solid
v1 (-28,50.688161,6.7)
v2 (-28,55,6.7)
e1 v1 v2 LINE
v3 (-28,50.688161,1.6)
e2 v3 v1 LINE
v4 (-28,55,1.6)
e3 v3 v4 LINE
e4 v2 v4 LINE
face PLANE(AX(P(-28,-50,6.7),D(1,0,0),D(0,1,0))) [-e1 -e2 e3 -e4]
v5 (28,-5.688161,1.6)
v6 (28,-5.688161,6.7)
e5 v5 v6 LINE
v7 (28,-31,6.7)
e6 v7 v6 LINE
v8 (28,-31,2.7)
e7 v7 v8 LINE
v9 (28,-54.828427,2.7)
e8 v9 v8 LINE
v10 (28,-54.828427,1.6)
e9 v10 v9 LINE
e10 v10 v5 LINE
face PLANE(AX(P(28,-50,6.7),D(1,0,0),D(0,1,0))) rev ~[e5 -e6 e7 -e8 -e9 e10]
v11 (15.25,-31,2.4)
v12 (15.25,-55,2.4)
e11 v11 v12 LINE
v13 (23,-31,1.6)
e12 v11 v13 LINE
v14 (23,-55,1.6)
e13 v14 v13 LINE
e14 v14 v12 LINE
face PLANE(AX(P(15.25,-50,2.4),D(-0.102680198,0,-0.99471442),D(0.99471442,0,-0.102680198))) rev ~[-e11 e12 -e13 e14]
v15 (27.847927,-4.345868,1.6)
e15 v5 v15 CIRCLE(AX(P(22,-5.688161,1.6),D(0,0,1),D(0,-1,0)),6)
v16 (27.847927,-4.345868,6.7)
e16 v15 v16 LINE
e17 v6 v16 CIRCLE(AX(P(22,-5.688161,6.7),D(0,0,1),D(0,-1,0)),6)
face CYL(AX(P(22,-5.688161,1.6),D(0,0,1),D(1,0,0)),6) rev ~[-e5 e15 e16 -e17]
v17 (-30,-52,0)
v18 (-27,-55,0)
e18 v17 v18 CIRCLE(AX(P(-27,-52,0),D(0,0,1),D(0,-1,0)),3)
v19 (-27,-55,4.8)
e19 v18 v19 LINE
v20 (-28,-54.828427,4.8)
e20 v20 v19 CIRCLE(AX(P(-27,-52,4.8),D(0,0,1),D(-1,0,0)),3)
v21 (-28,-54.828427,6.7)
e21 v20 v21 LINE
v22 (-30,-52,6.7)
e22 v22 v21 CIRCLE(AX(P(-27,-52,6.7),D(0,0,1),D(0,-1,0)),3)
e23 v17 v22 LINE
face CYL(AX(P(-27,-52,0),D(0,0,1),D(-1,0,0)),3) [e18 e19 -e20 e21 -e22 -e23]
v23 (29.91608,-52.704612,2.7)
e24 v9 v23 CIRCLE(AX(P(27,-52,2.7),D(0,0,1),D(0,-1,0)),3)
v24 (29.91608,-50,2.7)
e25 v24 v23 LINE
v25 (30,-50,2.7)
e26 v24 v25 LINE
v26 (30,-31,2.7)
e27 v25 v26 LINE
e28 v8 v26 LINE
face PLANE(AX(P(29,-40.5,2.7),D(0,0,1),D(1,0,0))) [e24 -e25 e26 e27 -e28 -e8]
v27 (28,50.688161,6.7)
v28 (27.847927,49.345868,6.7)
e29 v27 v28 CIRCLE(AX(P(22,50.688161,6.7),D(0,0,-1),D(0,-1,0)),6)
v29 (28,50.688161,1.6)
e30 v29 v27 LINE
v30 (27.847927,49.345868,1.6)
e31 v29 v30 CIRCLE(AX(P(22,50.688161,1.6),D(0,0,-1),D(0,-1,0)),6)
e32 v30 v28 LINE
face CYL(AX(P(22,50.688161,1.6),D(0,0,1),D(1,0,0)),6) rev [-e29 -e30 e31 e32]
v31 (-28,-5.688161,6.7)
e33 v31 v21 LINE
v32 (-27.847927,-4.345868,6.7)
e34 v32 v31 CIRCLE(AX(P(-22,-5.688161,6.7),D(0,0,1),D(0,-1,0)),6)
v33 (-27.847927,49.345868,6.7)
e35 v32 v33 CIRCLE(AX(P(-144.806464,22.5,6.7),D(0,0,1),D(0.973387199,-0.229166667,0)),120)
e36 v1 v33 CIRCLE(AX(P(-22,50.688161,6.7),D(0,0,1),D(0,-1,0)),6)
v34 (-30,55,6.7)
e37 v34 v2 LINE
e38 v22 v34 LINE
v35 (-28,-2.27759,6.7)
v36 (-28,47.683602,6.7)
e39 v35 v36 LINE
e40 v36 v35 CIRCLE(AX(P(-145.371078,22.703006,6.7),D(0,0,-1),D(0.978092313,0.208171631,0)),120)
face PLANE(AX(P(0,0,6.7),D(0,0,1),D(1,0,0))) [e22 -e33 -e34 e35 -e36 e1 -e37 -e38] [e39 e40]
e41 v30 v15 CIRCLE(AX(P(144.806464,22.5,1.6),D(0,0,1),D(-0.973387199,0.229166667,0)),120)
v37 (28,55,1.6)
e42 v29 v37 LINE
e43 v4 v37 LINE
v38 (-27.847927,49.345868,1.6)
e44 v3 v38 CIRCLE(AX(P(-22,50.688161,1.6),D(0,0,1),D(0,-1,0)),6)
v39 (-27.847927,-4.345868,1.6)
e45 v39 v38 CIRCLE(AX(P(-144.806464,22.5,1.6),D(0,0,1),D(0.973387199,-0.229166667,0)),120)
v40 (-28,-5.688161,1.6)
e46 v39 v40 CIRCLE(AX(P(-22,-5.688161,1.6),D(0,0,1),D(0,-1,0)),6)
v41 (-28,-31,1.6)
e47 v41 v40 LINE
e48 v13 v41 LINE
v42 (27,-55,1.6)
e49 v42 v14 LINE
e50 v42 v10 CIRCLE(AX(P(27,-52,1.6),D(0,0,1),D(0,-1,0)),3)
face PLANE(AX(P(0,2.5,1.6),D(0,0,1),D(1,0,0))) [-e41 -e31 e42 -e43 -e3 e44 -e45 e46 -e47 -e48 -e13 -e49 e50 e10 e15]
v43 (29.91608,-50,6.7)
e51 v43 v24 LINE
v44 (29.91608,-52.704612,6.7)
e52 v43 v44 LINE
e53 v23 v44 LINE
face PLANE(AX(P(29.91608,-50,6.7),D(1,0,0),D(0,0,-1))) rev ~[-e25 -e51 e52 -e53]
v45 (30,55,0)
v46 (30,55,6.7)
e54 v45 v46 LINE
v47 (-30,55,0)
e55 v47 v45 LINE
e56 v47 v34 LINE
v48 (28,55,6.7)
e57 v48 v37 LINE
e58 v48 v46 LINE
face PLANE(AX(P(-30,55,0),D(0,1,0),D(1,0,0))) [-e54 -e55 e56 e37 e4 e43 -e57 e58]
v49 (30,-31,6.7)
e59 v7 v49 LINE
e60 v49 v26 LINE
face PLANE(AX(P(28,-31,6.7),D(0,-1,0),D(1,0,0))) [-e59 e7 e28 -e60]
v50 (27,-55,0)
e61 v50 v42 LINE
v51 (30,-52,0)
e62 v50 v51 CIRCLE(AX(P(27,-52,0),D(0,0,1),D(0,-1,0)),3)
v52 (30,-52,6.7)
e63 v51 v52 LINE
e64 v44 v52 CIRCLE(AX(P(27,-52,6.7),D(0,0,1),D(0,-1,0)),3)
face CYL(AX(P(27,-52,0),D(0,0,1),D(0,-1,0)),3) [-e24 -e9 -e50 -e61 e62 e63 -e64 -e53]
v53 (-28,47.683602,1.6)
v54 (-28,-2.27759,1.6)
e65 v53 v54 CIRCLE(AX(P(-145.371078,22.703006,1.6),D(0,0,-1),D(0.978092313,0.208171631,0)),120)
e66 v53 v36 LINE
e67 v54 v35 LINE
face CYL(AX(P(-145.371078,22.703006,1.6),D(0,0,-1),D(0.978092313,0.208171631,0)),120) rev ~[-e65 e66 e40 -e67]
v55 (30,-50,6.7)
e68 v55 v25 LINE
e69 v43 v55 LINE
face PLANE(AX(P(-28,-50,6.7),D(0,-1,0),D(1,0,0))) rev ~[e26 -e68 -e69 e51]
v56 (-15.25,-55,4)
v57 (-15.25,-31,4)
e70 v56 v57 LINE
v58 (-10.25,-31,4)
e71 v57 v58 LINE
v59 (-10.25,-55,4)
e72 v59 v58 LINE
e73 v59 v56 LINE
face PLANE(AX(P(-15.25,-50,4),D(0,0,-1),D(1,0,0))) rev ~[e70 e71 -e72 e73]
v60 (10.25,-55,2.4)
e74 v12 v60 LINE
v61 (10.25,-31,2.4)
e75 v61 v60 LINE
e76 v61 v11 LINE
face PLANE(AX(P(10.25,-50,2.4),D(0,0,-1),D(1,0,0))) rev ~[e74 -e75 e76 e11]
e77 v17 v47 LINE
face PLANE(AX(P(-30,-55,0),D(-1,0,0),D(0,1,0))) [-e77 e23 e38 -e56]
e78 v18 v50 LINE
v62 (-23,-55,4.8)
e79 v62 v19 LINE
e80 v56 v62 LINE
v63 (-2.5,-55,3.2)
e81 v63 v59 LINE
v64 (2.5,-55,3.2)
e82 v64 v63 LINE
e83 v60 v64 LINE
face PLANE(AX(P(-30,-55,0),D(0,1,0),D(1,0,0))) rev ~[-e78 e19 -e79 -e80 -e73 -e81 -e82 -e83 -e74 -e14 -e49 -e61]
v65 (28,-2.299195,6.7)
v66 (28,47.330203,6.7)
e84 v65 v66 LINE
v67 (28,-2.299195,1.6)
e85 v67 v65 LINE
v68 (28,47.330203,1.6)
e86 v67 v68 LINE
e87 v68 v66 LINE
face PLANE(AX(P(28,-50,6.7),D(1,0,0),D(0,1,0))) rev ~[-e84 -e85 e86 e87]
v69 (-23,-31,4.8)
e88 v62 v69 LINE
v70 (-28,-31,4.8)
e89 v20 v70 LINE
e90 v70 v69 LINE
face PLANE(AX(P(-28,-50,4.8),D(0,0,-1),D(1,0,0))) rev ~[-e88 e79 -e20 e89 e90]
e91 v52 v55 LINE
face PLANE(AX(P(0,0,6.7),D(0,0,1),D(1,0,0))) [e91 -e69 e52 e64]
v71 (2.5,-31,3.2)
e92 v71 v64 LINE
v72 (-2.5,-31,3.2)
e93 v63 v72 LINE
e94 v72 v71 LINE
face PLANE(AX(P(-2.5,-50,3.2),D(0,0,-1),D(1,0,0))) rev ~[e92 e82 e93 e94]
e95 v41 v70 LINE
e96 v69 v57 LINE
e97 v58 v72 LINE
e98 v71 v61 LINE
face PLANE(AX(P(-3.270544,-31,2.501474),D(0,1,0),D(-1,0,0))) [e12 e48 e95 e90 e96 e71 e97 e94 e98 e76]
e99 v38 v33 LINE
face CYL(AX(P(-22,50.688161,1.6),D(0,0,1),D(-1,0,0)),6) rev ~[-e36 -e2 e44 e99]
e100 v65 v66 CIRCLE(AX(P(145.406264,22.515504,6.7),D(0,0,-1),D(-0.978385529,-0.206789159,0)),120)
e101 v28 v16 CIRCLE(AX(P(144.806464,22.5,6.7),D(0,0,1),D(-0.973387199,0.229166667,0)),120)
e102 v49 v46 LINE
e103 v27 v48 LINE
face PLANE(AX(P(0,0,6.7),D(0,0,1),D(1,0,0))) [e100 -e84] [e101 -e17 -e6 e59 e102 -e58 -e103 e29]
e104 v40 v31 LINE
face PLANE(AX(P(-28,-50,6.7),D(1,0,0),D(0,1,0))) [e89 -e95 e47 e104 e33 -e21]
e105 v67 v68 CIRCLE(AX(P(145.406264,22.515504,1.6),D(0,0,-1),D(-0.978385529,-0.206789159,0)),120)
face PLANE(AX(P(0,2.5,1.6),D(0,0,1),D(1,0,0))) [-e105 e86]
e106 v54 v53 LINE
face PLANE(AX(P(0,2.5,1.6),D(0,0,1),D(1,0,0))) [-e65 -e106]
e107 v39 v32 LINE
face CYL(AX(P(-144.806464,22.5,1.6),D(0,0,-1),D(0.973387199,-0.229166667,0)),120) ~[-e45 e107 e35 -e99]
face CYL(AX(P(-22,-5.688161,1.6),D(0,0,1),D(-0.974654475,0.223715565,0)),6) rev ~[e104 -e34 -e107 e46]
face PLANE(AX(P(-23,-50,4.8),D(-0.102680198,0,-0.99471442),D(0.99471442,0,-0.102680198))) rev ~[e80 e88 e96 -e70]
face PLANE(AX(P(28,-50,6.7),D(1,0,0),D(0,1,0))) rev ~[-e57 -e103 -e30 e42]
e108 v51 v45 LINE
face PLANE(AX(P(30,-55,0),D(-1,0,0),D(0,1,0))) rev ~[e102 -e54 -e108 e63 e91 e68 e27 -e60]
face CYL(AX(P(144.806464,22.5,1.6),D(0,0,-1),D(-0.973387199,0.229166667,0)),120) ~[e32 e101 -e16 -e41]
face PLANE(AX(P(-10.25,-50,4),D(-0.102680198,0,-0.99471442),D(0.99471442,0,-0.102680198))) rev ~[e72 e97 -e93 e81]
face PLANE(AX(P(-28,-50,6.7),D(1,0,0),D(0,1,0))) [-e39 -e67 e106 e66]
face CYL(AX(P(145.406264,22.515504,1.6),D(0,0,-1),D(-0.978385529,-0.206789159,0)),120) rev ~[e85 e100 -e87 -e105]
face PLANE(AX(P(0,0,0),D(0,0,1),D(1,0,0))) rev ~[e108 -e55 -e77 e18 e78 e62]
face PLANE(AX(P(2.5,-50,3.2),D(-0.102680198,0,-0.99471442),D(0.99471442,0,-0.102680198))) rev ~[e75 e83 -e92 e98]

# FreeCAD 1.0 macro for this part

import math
import FreeCAD as App
import Part
import Sketcher
from FreeCAD import Vector


def edges_at(feature, points):
    """Names of the edges that pass closest to the given points."""
    edges = feature.Shape.Edges
    near = lambda p: min(range(len(edges)), key=lambda i: edges[i].distToShape(Part.Vertex(*p))[0])
    return sorted({f"Edge{near(p) + 1}" for p in points})

doc = App.newDocument("Part")
body = doc.addObject("PartDesign::Body", "Body")

# Sketch on XY plane
sketch1 = body.newObject("Sketcher::SketchObject", "Sketch")
sketch1.AttachmentSupport = (doc.getObject("XY_Plane"), [""])
sketch1.MapMode = "FlatFace"
sketch1.addGeometry([
    Part.LineSegment(Vector(-30, 55, 0), Vector(-30, -55, 0)),
    Part.LineSegment(Vector(-30, -55, 0), Vector(30, -55, 0)),
    Part.LineSegment(Vector(30, -55, 0), Vector(30, 55, 0)),
    Part.LineSegment(Vector(30, 55, 0), Vector(-30, 55, 0)),
], False)
sketch1.addConstraint([
    Sketcher.Constraint("Coincident", 0, 2, 1, 1),
    Sketcher.Constraint("Coincident", 1, 2, 2, 1),
    Sketcher.Constraint("Coincident", 2, 2, 3, 1),
    Sketcher.Constraint("Coincident", 3, 2, 0, 1),
    Sketcher.Constraint("Vertical", 0),
    Sketcher.Constraint("Horizontal", 1),
    Sketcher.Constraint("Vertical", 2),
    Sketcher.Constraint("Horizontal", 3),
    Sketcher.Constraint("Symmetric", 0, 2, 2, 2, -1, 1),
    Sketcher.Constraint("DistanceX", 1, 1, 1, 2, 60.0),
    Sketcher.Constraint("DistanceY", 0, 2, 0, 1, 110.0),
])
pad1 = body.newObject("PartDesign::Pad", "Pad")
pad1.Profile = sketch1
pad1.Length = 6.7

# Sketch on XY plane
sketch2 = body.newObject("Sketcher::SketchObject", "Sketch001")
sketch2.AttachmentSupport = (doc.getObject("XY_Plane"), [""])
sketch2.MapMode = "FlatFace"
sketch2.AttachmentOffset = App.Placement(Vector(0, 0, 6.7), App.Rotation())
sketch2.addGeometry([
    Part.LineSegment(Vector(-28, 55, 0), Vector(-28, -50, 0)),
    Part.LineSegment(Vector(-28, -50, 0), Vector(28, -50, 0)),
    Part.LineSegment(Vector(28, -50, 0), Vector(28, 55, 0)),
    Part.LineSegment(Vector(28, 55, 0), Vector(-28, 55, 0)),
], False)
sketch2.addConstraint([
    Sketcher.Constraint("Coincident", 0, 2, 1, 1),
    Sketcher.Constraint("Coincident", 1, 2, 2, 1),
    Sketcher.Constraint("Coincident", 2, 2, 3, 1),
    Sketcher.Constraint("Coincident", 3, 2, 0, 1),
    Sketcher.Constraint("Vertical", 0),
    Sketcher.Constraint("Horizontal", 1),
    Sketcher.Constraint("Vertical", 2),
    Sketcher.Constraint("Horizontal", 3),
    Sketcher.Constraint("DistanceX", 1, 1, 1, 2, 56.0),
    Sketcher.Constraint("DistanceY", 0, 2, 0, 1, 105.0),
    Sketcher.Constraint("DistanceX", 0, 2, -1, 1, 28.0),
    Sketcher.Constraint("DistanceY", 0, 2, -1, 1, 50.0),
])
pocket1 = body.newObject("PartDesign::Pocket", "Pocket")
pocket1.Profile = sketch2
pocket1.Length = 5.1

# Sketch on XY plane
sketch3 = body.newObject("Sketcher::SketchObject", "Sketch002")
sketch3.AttachmentSupport = (doc.getObject("XY_Plane"), [""])
sketch3.MapMode = "FlatFace"
sketch3.AttachmentOffset = App.Placement(Vector(0, 0, 1.6), App.Rotation())
sketch3.addGeometry([
    Part.LineSegment(Vector(-28, -2.3, 0), Vector(-28, -5, 0)),  # 0
    Part.ArcOfCircle(Part.Circle(Vector(-144.8, 22.5, 0), Vector(0, 0, 1), 120), math.radians(-13), math.radians(13)),  # 1
    Part.LineSegment(Vector(-28, 50, 0), Vector(-28, 47.7, 0)),  # 2
    Part.ArcOfCircle(Part.Circle(Vector(-145.4, 22.7, 0), Vector(0, 0, 1), 120), math.radians(-12), math.radians(12)),  # 3
    Part.LineSegment(Vector(28, 47.3, 0), Vector(28, 50, 0)),  # 4
    Part.ArcOfCircle(Part.Circle(Vector(144.8, 22.5, 0), Vector(0, 0, 1), 120), math.radians(167), math.radians(193)),  # 5
    Part.LineSegment(Vector(28, -5, 0), Vector(28, -2.3, 0)),  # 6
    Part.ArcOfCircle(Part.Circle(Vector(145.4, 22.5, 0), Vector(0, 0, 1), 120), math.radians(168), math.radians(192)),  # 7
], False)
sketch3.addConstraint([
    Sketcher.Constraint("Coincident", 0, 2, 1, 1),
    Sketcher.Constraint("Coincident", 1, 2, 2, 1),
    Sketcher.Constraint("Coincident", 2, 2, 3, 2),
    Sketcher.Constraint("Coincident", 3, 1, 0, 1),
    Sketcher.Constraint("Coincident", 4, 2, 5, 1),
    Sketcher.Constraint("Coincident", 5, 2, 6, 1),
    Sketcher.Constraint("Coincident", 6, 2, 7, 2),
    Sketcher.Constraint("Coincident", 7, 1, 4, 1),
    Sketcher.Constraint("Vertical", 0),
    Sketcher.Constraint("Vertical", 2),
    Sketcher.Constraint("Vertical", 4),
    Sketcher.Constraint("Vertical", 6),
    Sketcher.Constraint("Equal", 1, 3),
    Sketcher.Constraint("Equal", 3, 5),
    Sketcher.Constraint("Equal", 5, 7),
    Sketcher.Constraint("Symmetric", 1, 3, 5, 3, -2),
    Sketcher.Constraint("Horizontal", 1, 2, 4, 2),
    Sketcher.Constraint("Horizontal", 0, 2, 5, 2),
    Sketcher.Constraint("Vertical", 0, 2, 1, 2),
    Sketcher.Constraint("Radius", 1, 120.0),
    Sketcher.Constraint("DistanceX", 0, 2, -1, 1, 28.0),
    Sketcher.Constraint("DistanceY", 0, 2, -1, 1, 5.0),
    Sketcher.Constraint("DistanceY", -1, 1, 1, 2, 50.0),
    Sketcher.Constraint("DistanceY", 2, 2, 2, 1, 2.316398),
    Sketcher.Constraint("DistanceY", 0, 2, 0, 1, 2.72241),
    Sketcher.Constraint("DistanceX", 5, 3, 7, 3, 0.5998),
    Sketcher.Constraint("DistanceY", 7, 3, 3, 3, 0.187502),
])
pad2 = body.newObject("PartDesign::Pad", "Pad001")
pad2.Profile = sketch3
pad2.Length = 5.1
doc.recompute()

fillet = body.newObject("PartDesign::Fillet", "Fillet")
fillet.Base = (pad2, edges_at(pad2, [(-30, -55, 3.35), (30, -55, 3.35)]))
fillet.Radius = 3
doc.recompute()

fillet2 = body.newObject("PartDesign::Fillet", "Fillet001")
fillet2.Base = (fillet, edges_at(fillet, [
    (28, -5, 4.15),
    (-28, -5, 4.15),
    (-28, 50, 4.15),
    (28, 50, 4.15),
]))
fillet2.Radius = 6

# Sketch on XZ plane
sketch4 = body.newObject("Sketcher::SketchObject", "Sketch003")
sketch4.AttachmentSupport = (doc.getObject("XZ_Plane"), [""])
sketch4.MapMode = "FlatFace"
sketch4.AttachmentOffset = App.Placement(Vector(0, 0, 50), App.Rotation())
sketch4.addGeometry([
    Part.LineSegment(Vector(15.2, 2.4, 0), Vector(23, 1.6, 0)),  # 0
    Part.LineSegment(Vector(23, 1.6, 0), Vector(-28, 1.6, 0)),  # 1
    Part.LineSegment(Vector(-28, 1.6, 0), Vector(-28, 4.8, 0)),  # 2
    Part.LineSegment(Vector(-28, 4.8, 0), Vector(-23, 4.8, 0)),  # 3
    Part.LineSegment(Vector(-23, 4.8, 0), Vector(-15.2, 4, 0)),  # 4
    Part.LineSegment(Vector(-15.2, 4, 0), Vector(-10.2, 4, 0)),  # 5
    Part.LineSegment(Vector(-10.2, 4, 0), Vector(-2.5, 3.2, 0)),  # 6
    Part.LineSegment(Vector(-2.5, 3.2, 0), Vector(2.5, 3.2, 0)),  # 7
    Part.LineSegment(Vector(2.5, 3.2, 0), Vector(10.2, 2.4, 0)),  # 8
    Part.LineSegment(Vector(10.2, 2.4, 0), Vector(15.2, 2.4, 0)),  # 9
], False)
sketch4.addConstraint([
    Sketcher.Constraint("Coincident", 0, 2, 1, 1),
    Sketcher.Constraint("Coincident", 1, 2, 2, 1),
    Sketcher.Constraint("Coincident", 2, 2, 3, 1),
    Sketcher.Constraint("Coincident", 3, 2, 4, 1),
    Sketcher.Constraint("Coincident", 4, 2, 5, 1),
    Sketcher.Constraint("Coincident", 5, 2, 6, 1),
    Sketcher.Constraint("Coincident", 6, 2, 7, 1),
    Sketcher.Constraint("Coincident", 7, 2, 8, 1),
    Sketcher.Constraint("Coincident", 8, 2, 9, 1),
    Sketcher.Constraint("Coincident", 9, 2, 0, 1),
    Sketcher.Constraint("Horizontal", 1),
    Sketcher.Constraint("Vertical", 2),
    Sketcher.Constraint("Horizontal", 3),
    Sketcher.Constraint("Horizontal", 5),
    Sketcher.Constraint("Horizontal", 7),
    Sketcher.Constraint("Horizontal", 9),
    Sketcher.Constraint("Parallel", 0, 4),
    Sketcher.Constraint("Parallel", 4, 6),
    Sketcher.Constraint("Parallel", 6, 8),
    Sketcher.Constraint("Equal", 3, 5),
    Sketcher.Constraint("Equal", 5, 7),
    Sketcher.Constraint("Equal", 7, 9),
    Sketcher.Constraint("Equal", 0, 4),
    Sketcher.Constraint("Equal", 4, 6),
    Sketcher.Constraint("Equal", 6, 8),
    Sketcher.Constraint("DistanceX", 1, 2, 1, 1, 51.0),
    Sketcher.Constraint("DistanceX", 3, 1, 3, 2, 5.0),
    Sketcher.Constraint("DistanceY", 2, 1, 2, 2, 3.2),
    Sketcher.Constraint("DistanceX", -1, 1, 0, 2, 23.0),
    Sketcher.Constraint("DistanceY", -1, 1, 4, 2, 4.0),
])
pad3 = body.newObject("PartDesign::Pad", "Pad002")
pad3.Profile = sketch4
pad3.Length = 19
pad3.Reversed = True

# Sketch on XY plane
sketch5 = body.newObject("Sketcher::SketchObject", "Sketch004")
sketch5.AttachmentSupport = (doc.getObject("XY_Plane"), [""])
sketch5.MapMode = "FlatFace"
sketch5.AttachmentOffset = App.Placement(Vector(0, 0, 6.7), App.Rotation())
sketch5.addGeometry([
    Part.LineSegment(Vector(28, -31, 0), Vector(28, -50, 0)),
    Part.LineSegment(Vector(28, -50, 0), Vector(30, -50, 0)),
    Part.LineSegment(Vector(30, -50, 0), Vector(30, -31, 0)),
    Part.LineSegment(Vector(30, -31, 0), Vector(28, -31, 0)),
], False)
sketch5.addConstraint([
    Sketcher.Constraint("Coincident", 0, 2, 1, 1),
    Sketcher.Constraint("Coincident", 1, 2, 2, 1),
    Sketcher.Constraint("Coincident", 2, 2, 3, 1),
    Sketcher.Constraint("Coincident", 3, 2, 0, 1),
    Sketcher.Constraint("Vertical", 0),
    Sketcher.Constraint("Horizontal", 1),
    Sketcher.Constraint("Vertical", 2),
    Sketcher.Constraint("Horizontal", 3),
    Sketcher.Constraint("DistanceX", 1, 1, 1, 2, 2.0),
    Sketcher.Constraint("DistanceY", 0, 2, 0, 1, 19.0),
    Sketcher.Constraint("DistanceX", -1, 1, 0, 2, 28.0),
    Sketcher.Constraint("DistanceY", 0, 2, -1, 1, 50.0),
])
pocket2 = body.newObject("PartDesign::Pocket", "Pocket001")
pocket2.Profile = sketch5
pocket2.Length = 4

# Sketch on XZ plane
sketch6 = body.newObject("Sketcher::SketchObject", "Sketch005")
sketch6.AttachmentSupport = (doc.getObject("XZ_Plane"), [""])
sketch6.MapMode = "FlatFace"
sketch6.AttachmentOffset = App.Placement(Vector(0, 0, 50), App.Rotation())
sketch6.addGeometry([
    Part.LineSegment(Vector(-23, 4.8, 0), Vector(-28, 4.8, 0)),  # 0
    Part.LineSegment(Vector(-28, 4.8, 0), Vector(-28, 6.7, 0)),  # 1
    Part.LineSegment(Vector(-28, 6.7, 0), Vector(29.9, 6.7, 0)),  # 2
    Part.LineSegment(Vector(29.9, 6.7, 0), Vector(29.9, 2.7, 0)),  # 3
    Part.LineSegment(Vector(29.9, 2.7, 0), Vector(28, 2.7, 0)),  # 4
    Part.LineSegment(Vector(28, 2.7, 0), Vector(28, 1.6, 0)),  # 5
    Part.LineSegment(Vector(28, 1.6, 0), Vector(23, 1.6, 0)),  # 6
    Part.LineSegment(Vector(23, 1.6, 0), Vector(15.2, 2.4, 0)),  # 7
    Part.LineSegment(Vector(15.2, 2.4, 0), Vector(10.2, 2.4, 0)),  # 8
    Part.LineSegment(Vector(10.2, 2.4, 0), Vector(2.5, 3.2, 0)),  # 9
    Part.LineSegment(Vector(2.5, 3.2, 0), Vector(-2.5, 3.2, 0)),  # 10
    Part.LineSegment(Vector(-2.5, 3.2, 0), Vector(-10.2, 4, 0)),  # 11
    Part.LineSegment(Vector(-10.2, 4, 0), Vector(-15.2, 4, 0)),  # 12
    Part.LineSegment(Vector(-15.2, 4, 0), Vector(-23, 4.8, 0)),  # 13
], False)
sketch6.addConstraint([
    Sketcher.Constraint("Coincident", 0, 2, 1, 1),
    Sketcher.Constraint("Coincident", 1, 2, 2, 1),
    Sketcher.Constraint("Coincident", 2, 2, 3, 1),
    Sketcher.Constraint("Coincident", 3, 2, 4, 1),
    Sketcher.Constraint("Coincident", 4, 2, 5, 1),
    Sketcher.Constraint("Coincident", 5, 2, 6, 1),
    Sketcher.Constraint("Coincident", 6, 2, 7, 1),
    Sketcher.Constraint("Coincident", 7, 2, 8, 1),
    Sketcher.Constraint("Coincident", 8, 2, 9, 1),
    Sketcher.Constraint("Coincident", 9, 2, 10, 1),
    Sketcher.Constraint("Coincident", 10, 2, 11, 1),
    Sketcher.Constraint("Coincident", 11, 2, 12, 1),
    Sketcher.Constraint("Coincident", 12, 2, 13, 1),
    Sketcher.Constraint("Coincident", 13, 2, 0, 1),
    Sketcher.Constraint("Horizontal", 0),
    Sketcher.Constraint("Vertical", 1),
    Sketcher.Constraint("Horizontal", 2),
    Sketcher.Constraint("Vertical", 3),
    Sketcher.Constraint("Horizontal", 4),
    Sketcher.Constraint("Vertical", 5),
    Sketcher.Constraint("Horizontal", 6),
    Sketcher.Constraint("Horizontal", 8),
    Sketcher.Constraint("Horizontal", 10),
    Sketcher.Constraint("Horizontal", 12),
    Sketcher.Constraint("Parallel", 7, 9),
    Sketcher.Constraint("Parallel", 9, 11),
    Sketcher.Constraint("Parallel", 11, 13),
    Sketcher.Constraint("Equal", 0, 6),
    Sketcher.Constraint("Equal", 6, 8),
    Sketcher.Constraint("Equal", 8, 10),
    Sketcher.Constraint("Equal", 10, 12),
    Sketcher.Constraint("Equal", 7, 9),
    Sketcher.Constraint("Equal", 9, 11),
    Sketcher.Constraint("Equal", 11, 13),
    Sketcher.Constraint("DistanceX", 0, 2, 0, 1, 5.0),
    Sketcher.Constraint("DistanceY", 3, 2, 3, 1, 4.0),
    Sketcher.Constraint("DistanceY", 1, 1, 1, 2, 1.9),
    Sketcher.Constraint("DistanceY", 5, 2, 5, 1, 1.1),
    Sketcher.Constraint("DistanceX", 0, 2, -1, 1, 28.0),
    Sketcher.Constraint("DistanceX", -1, 1, 4, 2, 28.0),
    Sketcher.Constraint("DistanceY", -1, 1, 11, 2, 4.0),
    Sketcher.Constraint("DistanceX", 2, 1, 2, 2, 57.91608),
])
pocket3 = body.newObject("PartDesign::Pocket", "Pocket002")
pocket3.Profile = sketch6
pocket3.Length = 25
pocket3.Reversed = True

doc.recompute()
